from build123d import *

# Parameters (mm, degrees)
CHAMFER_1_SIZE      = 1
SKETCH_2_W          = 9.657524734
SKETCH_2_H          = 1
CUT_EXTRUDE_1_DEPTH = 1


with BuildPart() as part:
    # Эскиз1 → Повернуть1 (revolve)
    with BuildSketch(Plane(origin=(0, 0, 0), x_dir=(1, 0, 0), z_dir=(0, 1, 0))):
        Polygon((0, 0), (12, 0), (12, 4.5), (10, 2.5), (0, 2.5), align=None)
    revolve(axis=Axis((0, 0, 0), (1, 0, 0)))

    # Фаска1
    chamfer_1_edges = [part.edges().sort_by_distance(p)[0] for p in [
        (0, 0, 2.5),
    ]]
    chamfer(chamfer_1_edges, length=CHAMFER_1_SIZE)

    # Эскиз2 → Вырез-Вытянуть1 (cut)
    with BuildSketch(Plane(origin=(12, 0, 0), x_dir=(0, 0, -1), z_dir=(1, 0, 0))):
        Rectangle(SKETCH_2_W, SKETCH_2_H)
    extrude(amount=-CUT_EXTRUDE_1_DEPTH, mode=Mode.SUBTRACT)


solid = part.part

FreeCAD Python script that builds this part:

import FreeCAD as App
import Part
import Sketcher
from FreeCAD import Vector
Q = App.Units.Quantity


def edges_at(feature, points):
    """Names of the edges that pass closest to the given points."""
    edges = feature.Shape.Edges
    near = lambda p: min(range(len(edges)), key=lambda i: edges[i].distToShape(Part.Vertex(*p))[0])
    return sorted({f"Edge{near(p) + 1}" for p in points})

doc = App.newDocument("Part")
params = doc.addObject("Spreadsheet::Sheet", "Params")
for row, (alias, value) in enumerate([
    ("sketch1_width", "12 mm"),
    ("sketch1_width2", "10 mm"),
    ("sketch1_height", "4.5 mm"),
    ("revolution_angle", "360 deg"),
    ("chamfer_size", "1 mm"),
    ("sketch2_width", "1 mm"),
    ("pocket1_length", "1 mm"),
], start=1):
    params.set(f"A{row}", alias)
    params.set(f"B{row}", "=" + value)
    params.setAlias(f"B{row}", alias)

body = doc.addObject("PartDesign::Body", "Body")

sketch1 = body.newObject("Sketcher::SketchObject", "Sketch")
sketch1.AttachmentSupport = (doc.getObject("XZ_Plane"), [""])
sketch1.MapMode = "FlatFace"
sketch1.addGeometry([
    Part.LineSegment(Vector(0, 0, 0), Vector(12, 0, 0)),
    Part.LineSegment(Vector(12, 0, 0), Vector(12, -4.5, 0)),
    Part.LineSegment(Vector(12, -4.5, 0), Vector(10, -2.5, 0)),
    Part.LineSegment(Vector(10, -2.5, 0), Vector(0, -2.5, 0)),
    Part.LineSegment(Vector(0, -2.5, 0), Vector(0, 0, 0)),
], False)
sketch1.addConstraint([
    Sketcher.Constraint("Coincident", 0, 2, 1, 1),
    Sketcher.Constraint("Coincident", 1, 2, 2, 1),
    Sketcher.Constraint("Coincident", 2, 2, 3, 1),
    Sketcher.Constraint("Coincident", 3, 2, 4, 1),
    Sketcher.Constraint("Coincident", 4, 2, 0, 1),
    Sketcher.Constraint("Horizontal", 0),
    Sketcher.Constraint("Vertical", 1),
    Sketcher.Constraint("Horizontal", 3),
    Sketcher.Constraint("Vertical", 4),
    Sketcher.Constraint("Coincident", 4, 2, -1, 1),
    Sketcher.Constraint("DistanceX", 0, 1, 0, 2, 12.0),
    Sketcher.Constraint("DistanceX", 3, 2, 3, 1, 10.0),
    Sketcher.Constraint("Angle", 2, Q("135 deg")),
    Sketcher.Constraint("DistanceY", 1, 2, 1, 1, 4.5),
])
sketch1.setExpression("Constraints[10]", "Params.sketch1_width")
sketch1.setExpression("Constraints[11]", "Params.sketch1_width2")
sketch1.setExpression("Constraints[13]", "Params.sketch1_height")
revolution = body.newObject("PartDesign::Revolution", "Revolution")
revolution.Profile = sketch1
revolution.ReferenceAxis = (sketch1, ["H_Axis"])
revolution.setExpression("Angle", "Params.revolution_angle")
doc.recompute()

chamfer = body.newObject("PartDesign::Chamfer", "Chamfer")
chamfer.Base = (revolution, edges_at(revolution, [(0, 0, 2.5)]))
chamfer.setExpression("Size", "Params.chamfer_size")

sketch2 = body.newObject("Sketcher::SketchObject", "Sketch001")
sketch2.AttachmentSupport = (doc.getObject("YZ_Plane"), [""])
sketch2.MapMode = "FlatFace"
sketch2.AttachmentOffset = App.Placement(Vector(0, 0, 12), App.Rotation())
sketch2.addGeometry([
    Part.LineSegment(Vector(0.5, 4.828762, 0), Vector(-0.5, 4.828762, 0)),
    Part.LineSegment(Vector(-0.5, 4.828762, 0), Vector(-0.5, -4.828762, 0)),
    Part.LineSegment(Vector(-0.5, -4.828762, 0), Vector(0.5, -4.828762, 0)),
    Part.LineSegment(Vector(0.5, -4.828762, 0), Vector(0.5, 4.828762, 0)),
], False)
sketch2.addConstraint([
    Sketcher.Constraint("Coincident", 0, 2, 1, 1),
    Sketcher.Constraint("Coincident", 1, 2, 2, 1),
    Sketcher.Constraint("Coincident", 2, 2, 3, 1),
    Sketcher.Constraint("Coincident", 3, 2, 0, 1),
    Sketcher.Constraint("Horizontal", 0),
    Sketcher.Constraint("Vertical", 1),
    Sketcher.Constraint("Horizontal", 2),
    Sketcher.Constraint("Vertical", 3),
    Sketcher.Constraint("Symmetric", 0, 2, 2, 2, -1, 1),
    Sketcher.Constraint("DistanceX", 0, 2, 0, 1, 1.0),
    Sketcher.Constraint("DistanceY", 1, 2, 1, 1, 9.657525),
])
sketch2.setExpression("Constraints[9]", "Params.sketch2_width")
pocket1 = body.newObject("PartDesign::Pocket", "Pocket")
pocket1.Profile = sketch2
pocket1.setExpression("Length", "Params.pocket1_length")

doc.recompute()
